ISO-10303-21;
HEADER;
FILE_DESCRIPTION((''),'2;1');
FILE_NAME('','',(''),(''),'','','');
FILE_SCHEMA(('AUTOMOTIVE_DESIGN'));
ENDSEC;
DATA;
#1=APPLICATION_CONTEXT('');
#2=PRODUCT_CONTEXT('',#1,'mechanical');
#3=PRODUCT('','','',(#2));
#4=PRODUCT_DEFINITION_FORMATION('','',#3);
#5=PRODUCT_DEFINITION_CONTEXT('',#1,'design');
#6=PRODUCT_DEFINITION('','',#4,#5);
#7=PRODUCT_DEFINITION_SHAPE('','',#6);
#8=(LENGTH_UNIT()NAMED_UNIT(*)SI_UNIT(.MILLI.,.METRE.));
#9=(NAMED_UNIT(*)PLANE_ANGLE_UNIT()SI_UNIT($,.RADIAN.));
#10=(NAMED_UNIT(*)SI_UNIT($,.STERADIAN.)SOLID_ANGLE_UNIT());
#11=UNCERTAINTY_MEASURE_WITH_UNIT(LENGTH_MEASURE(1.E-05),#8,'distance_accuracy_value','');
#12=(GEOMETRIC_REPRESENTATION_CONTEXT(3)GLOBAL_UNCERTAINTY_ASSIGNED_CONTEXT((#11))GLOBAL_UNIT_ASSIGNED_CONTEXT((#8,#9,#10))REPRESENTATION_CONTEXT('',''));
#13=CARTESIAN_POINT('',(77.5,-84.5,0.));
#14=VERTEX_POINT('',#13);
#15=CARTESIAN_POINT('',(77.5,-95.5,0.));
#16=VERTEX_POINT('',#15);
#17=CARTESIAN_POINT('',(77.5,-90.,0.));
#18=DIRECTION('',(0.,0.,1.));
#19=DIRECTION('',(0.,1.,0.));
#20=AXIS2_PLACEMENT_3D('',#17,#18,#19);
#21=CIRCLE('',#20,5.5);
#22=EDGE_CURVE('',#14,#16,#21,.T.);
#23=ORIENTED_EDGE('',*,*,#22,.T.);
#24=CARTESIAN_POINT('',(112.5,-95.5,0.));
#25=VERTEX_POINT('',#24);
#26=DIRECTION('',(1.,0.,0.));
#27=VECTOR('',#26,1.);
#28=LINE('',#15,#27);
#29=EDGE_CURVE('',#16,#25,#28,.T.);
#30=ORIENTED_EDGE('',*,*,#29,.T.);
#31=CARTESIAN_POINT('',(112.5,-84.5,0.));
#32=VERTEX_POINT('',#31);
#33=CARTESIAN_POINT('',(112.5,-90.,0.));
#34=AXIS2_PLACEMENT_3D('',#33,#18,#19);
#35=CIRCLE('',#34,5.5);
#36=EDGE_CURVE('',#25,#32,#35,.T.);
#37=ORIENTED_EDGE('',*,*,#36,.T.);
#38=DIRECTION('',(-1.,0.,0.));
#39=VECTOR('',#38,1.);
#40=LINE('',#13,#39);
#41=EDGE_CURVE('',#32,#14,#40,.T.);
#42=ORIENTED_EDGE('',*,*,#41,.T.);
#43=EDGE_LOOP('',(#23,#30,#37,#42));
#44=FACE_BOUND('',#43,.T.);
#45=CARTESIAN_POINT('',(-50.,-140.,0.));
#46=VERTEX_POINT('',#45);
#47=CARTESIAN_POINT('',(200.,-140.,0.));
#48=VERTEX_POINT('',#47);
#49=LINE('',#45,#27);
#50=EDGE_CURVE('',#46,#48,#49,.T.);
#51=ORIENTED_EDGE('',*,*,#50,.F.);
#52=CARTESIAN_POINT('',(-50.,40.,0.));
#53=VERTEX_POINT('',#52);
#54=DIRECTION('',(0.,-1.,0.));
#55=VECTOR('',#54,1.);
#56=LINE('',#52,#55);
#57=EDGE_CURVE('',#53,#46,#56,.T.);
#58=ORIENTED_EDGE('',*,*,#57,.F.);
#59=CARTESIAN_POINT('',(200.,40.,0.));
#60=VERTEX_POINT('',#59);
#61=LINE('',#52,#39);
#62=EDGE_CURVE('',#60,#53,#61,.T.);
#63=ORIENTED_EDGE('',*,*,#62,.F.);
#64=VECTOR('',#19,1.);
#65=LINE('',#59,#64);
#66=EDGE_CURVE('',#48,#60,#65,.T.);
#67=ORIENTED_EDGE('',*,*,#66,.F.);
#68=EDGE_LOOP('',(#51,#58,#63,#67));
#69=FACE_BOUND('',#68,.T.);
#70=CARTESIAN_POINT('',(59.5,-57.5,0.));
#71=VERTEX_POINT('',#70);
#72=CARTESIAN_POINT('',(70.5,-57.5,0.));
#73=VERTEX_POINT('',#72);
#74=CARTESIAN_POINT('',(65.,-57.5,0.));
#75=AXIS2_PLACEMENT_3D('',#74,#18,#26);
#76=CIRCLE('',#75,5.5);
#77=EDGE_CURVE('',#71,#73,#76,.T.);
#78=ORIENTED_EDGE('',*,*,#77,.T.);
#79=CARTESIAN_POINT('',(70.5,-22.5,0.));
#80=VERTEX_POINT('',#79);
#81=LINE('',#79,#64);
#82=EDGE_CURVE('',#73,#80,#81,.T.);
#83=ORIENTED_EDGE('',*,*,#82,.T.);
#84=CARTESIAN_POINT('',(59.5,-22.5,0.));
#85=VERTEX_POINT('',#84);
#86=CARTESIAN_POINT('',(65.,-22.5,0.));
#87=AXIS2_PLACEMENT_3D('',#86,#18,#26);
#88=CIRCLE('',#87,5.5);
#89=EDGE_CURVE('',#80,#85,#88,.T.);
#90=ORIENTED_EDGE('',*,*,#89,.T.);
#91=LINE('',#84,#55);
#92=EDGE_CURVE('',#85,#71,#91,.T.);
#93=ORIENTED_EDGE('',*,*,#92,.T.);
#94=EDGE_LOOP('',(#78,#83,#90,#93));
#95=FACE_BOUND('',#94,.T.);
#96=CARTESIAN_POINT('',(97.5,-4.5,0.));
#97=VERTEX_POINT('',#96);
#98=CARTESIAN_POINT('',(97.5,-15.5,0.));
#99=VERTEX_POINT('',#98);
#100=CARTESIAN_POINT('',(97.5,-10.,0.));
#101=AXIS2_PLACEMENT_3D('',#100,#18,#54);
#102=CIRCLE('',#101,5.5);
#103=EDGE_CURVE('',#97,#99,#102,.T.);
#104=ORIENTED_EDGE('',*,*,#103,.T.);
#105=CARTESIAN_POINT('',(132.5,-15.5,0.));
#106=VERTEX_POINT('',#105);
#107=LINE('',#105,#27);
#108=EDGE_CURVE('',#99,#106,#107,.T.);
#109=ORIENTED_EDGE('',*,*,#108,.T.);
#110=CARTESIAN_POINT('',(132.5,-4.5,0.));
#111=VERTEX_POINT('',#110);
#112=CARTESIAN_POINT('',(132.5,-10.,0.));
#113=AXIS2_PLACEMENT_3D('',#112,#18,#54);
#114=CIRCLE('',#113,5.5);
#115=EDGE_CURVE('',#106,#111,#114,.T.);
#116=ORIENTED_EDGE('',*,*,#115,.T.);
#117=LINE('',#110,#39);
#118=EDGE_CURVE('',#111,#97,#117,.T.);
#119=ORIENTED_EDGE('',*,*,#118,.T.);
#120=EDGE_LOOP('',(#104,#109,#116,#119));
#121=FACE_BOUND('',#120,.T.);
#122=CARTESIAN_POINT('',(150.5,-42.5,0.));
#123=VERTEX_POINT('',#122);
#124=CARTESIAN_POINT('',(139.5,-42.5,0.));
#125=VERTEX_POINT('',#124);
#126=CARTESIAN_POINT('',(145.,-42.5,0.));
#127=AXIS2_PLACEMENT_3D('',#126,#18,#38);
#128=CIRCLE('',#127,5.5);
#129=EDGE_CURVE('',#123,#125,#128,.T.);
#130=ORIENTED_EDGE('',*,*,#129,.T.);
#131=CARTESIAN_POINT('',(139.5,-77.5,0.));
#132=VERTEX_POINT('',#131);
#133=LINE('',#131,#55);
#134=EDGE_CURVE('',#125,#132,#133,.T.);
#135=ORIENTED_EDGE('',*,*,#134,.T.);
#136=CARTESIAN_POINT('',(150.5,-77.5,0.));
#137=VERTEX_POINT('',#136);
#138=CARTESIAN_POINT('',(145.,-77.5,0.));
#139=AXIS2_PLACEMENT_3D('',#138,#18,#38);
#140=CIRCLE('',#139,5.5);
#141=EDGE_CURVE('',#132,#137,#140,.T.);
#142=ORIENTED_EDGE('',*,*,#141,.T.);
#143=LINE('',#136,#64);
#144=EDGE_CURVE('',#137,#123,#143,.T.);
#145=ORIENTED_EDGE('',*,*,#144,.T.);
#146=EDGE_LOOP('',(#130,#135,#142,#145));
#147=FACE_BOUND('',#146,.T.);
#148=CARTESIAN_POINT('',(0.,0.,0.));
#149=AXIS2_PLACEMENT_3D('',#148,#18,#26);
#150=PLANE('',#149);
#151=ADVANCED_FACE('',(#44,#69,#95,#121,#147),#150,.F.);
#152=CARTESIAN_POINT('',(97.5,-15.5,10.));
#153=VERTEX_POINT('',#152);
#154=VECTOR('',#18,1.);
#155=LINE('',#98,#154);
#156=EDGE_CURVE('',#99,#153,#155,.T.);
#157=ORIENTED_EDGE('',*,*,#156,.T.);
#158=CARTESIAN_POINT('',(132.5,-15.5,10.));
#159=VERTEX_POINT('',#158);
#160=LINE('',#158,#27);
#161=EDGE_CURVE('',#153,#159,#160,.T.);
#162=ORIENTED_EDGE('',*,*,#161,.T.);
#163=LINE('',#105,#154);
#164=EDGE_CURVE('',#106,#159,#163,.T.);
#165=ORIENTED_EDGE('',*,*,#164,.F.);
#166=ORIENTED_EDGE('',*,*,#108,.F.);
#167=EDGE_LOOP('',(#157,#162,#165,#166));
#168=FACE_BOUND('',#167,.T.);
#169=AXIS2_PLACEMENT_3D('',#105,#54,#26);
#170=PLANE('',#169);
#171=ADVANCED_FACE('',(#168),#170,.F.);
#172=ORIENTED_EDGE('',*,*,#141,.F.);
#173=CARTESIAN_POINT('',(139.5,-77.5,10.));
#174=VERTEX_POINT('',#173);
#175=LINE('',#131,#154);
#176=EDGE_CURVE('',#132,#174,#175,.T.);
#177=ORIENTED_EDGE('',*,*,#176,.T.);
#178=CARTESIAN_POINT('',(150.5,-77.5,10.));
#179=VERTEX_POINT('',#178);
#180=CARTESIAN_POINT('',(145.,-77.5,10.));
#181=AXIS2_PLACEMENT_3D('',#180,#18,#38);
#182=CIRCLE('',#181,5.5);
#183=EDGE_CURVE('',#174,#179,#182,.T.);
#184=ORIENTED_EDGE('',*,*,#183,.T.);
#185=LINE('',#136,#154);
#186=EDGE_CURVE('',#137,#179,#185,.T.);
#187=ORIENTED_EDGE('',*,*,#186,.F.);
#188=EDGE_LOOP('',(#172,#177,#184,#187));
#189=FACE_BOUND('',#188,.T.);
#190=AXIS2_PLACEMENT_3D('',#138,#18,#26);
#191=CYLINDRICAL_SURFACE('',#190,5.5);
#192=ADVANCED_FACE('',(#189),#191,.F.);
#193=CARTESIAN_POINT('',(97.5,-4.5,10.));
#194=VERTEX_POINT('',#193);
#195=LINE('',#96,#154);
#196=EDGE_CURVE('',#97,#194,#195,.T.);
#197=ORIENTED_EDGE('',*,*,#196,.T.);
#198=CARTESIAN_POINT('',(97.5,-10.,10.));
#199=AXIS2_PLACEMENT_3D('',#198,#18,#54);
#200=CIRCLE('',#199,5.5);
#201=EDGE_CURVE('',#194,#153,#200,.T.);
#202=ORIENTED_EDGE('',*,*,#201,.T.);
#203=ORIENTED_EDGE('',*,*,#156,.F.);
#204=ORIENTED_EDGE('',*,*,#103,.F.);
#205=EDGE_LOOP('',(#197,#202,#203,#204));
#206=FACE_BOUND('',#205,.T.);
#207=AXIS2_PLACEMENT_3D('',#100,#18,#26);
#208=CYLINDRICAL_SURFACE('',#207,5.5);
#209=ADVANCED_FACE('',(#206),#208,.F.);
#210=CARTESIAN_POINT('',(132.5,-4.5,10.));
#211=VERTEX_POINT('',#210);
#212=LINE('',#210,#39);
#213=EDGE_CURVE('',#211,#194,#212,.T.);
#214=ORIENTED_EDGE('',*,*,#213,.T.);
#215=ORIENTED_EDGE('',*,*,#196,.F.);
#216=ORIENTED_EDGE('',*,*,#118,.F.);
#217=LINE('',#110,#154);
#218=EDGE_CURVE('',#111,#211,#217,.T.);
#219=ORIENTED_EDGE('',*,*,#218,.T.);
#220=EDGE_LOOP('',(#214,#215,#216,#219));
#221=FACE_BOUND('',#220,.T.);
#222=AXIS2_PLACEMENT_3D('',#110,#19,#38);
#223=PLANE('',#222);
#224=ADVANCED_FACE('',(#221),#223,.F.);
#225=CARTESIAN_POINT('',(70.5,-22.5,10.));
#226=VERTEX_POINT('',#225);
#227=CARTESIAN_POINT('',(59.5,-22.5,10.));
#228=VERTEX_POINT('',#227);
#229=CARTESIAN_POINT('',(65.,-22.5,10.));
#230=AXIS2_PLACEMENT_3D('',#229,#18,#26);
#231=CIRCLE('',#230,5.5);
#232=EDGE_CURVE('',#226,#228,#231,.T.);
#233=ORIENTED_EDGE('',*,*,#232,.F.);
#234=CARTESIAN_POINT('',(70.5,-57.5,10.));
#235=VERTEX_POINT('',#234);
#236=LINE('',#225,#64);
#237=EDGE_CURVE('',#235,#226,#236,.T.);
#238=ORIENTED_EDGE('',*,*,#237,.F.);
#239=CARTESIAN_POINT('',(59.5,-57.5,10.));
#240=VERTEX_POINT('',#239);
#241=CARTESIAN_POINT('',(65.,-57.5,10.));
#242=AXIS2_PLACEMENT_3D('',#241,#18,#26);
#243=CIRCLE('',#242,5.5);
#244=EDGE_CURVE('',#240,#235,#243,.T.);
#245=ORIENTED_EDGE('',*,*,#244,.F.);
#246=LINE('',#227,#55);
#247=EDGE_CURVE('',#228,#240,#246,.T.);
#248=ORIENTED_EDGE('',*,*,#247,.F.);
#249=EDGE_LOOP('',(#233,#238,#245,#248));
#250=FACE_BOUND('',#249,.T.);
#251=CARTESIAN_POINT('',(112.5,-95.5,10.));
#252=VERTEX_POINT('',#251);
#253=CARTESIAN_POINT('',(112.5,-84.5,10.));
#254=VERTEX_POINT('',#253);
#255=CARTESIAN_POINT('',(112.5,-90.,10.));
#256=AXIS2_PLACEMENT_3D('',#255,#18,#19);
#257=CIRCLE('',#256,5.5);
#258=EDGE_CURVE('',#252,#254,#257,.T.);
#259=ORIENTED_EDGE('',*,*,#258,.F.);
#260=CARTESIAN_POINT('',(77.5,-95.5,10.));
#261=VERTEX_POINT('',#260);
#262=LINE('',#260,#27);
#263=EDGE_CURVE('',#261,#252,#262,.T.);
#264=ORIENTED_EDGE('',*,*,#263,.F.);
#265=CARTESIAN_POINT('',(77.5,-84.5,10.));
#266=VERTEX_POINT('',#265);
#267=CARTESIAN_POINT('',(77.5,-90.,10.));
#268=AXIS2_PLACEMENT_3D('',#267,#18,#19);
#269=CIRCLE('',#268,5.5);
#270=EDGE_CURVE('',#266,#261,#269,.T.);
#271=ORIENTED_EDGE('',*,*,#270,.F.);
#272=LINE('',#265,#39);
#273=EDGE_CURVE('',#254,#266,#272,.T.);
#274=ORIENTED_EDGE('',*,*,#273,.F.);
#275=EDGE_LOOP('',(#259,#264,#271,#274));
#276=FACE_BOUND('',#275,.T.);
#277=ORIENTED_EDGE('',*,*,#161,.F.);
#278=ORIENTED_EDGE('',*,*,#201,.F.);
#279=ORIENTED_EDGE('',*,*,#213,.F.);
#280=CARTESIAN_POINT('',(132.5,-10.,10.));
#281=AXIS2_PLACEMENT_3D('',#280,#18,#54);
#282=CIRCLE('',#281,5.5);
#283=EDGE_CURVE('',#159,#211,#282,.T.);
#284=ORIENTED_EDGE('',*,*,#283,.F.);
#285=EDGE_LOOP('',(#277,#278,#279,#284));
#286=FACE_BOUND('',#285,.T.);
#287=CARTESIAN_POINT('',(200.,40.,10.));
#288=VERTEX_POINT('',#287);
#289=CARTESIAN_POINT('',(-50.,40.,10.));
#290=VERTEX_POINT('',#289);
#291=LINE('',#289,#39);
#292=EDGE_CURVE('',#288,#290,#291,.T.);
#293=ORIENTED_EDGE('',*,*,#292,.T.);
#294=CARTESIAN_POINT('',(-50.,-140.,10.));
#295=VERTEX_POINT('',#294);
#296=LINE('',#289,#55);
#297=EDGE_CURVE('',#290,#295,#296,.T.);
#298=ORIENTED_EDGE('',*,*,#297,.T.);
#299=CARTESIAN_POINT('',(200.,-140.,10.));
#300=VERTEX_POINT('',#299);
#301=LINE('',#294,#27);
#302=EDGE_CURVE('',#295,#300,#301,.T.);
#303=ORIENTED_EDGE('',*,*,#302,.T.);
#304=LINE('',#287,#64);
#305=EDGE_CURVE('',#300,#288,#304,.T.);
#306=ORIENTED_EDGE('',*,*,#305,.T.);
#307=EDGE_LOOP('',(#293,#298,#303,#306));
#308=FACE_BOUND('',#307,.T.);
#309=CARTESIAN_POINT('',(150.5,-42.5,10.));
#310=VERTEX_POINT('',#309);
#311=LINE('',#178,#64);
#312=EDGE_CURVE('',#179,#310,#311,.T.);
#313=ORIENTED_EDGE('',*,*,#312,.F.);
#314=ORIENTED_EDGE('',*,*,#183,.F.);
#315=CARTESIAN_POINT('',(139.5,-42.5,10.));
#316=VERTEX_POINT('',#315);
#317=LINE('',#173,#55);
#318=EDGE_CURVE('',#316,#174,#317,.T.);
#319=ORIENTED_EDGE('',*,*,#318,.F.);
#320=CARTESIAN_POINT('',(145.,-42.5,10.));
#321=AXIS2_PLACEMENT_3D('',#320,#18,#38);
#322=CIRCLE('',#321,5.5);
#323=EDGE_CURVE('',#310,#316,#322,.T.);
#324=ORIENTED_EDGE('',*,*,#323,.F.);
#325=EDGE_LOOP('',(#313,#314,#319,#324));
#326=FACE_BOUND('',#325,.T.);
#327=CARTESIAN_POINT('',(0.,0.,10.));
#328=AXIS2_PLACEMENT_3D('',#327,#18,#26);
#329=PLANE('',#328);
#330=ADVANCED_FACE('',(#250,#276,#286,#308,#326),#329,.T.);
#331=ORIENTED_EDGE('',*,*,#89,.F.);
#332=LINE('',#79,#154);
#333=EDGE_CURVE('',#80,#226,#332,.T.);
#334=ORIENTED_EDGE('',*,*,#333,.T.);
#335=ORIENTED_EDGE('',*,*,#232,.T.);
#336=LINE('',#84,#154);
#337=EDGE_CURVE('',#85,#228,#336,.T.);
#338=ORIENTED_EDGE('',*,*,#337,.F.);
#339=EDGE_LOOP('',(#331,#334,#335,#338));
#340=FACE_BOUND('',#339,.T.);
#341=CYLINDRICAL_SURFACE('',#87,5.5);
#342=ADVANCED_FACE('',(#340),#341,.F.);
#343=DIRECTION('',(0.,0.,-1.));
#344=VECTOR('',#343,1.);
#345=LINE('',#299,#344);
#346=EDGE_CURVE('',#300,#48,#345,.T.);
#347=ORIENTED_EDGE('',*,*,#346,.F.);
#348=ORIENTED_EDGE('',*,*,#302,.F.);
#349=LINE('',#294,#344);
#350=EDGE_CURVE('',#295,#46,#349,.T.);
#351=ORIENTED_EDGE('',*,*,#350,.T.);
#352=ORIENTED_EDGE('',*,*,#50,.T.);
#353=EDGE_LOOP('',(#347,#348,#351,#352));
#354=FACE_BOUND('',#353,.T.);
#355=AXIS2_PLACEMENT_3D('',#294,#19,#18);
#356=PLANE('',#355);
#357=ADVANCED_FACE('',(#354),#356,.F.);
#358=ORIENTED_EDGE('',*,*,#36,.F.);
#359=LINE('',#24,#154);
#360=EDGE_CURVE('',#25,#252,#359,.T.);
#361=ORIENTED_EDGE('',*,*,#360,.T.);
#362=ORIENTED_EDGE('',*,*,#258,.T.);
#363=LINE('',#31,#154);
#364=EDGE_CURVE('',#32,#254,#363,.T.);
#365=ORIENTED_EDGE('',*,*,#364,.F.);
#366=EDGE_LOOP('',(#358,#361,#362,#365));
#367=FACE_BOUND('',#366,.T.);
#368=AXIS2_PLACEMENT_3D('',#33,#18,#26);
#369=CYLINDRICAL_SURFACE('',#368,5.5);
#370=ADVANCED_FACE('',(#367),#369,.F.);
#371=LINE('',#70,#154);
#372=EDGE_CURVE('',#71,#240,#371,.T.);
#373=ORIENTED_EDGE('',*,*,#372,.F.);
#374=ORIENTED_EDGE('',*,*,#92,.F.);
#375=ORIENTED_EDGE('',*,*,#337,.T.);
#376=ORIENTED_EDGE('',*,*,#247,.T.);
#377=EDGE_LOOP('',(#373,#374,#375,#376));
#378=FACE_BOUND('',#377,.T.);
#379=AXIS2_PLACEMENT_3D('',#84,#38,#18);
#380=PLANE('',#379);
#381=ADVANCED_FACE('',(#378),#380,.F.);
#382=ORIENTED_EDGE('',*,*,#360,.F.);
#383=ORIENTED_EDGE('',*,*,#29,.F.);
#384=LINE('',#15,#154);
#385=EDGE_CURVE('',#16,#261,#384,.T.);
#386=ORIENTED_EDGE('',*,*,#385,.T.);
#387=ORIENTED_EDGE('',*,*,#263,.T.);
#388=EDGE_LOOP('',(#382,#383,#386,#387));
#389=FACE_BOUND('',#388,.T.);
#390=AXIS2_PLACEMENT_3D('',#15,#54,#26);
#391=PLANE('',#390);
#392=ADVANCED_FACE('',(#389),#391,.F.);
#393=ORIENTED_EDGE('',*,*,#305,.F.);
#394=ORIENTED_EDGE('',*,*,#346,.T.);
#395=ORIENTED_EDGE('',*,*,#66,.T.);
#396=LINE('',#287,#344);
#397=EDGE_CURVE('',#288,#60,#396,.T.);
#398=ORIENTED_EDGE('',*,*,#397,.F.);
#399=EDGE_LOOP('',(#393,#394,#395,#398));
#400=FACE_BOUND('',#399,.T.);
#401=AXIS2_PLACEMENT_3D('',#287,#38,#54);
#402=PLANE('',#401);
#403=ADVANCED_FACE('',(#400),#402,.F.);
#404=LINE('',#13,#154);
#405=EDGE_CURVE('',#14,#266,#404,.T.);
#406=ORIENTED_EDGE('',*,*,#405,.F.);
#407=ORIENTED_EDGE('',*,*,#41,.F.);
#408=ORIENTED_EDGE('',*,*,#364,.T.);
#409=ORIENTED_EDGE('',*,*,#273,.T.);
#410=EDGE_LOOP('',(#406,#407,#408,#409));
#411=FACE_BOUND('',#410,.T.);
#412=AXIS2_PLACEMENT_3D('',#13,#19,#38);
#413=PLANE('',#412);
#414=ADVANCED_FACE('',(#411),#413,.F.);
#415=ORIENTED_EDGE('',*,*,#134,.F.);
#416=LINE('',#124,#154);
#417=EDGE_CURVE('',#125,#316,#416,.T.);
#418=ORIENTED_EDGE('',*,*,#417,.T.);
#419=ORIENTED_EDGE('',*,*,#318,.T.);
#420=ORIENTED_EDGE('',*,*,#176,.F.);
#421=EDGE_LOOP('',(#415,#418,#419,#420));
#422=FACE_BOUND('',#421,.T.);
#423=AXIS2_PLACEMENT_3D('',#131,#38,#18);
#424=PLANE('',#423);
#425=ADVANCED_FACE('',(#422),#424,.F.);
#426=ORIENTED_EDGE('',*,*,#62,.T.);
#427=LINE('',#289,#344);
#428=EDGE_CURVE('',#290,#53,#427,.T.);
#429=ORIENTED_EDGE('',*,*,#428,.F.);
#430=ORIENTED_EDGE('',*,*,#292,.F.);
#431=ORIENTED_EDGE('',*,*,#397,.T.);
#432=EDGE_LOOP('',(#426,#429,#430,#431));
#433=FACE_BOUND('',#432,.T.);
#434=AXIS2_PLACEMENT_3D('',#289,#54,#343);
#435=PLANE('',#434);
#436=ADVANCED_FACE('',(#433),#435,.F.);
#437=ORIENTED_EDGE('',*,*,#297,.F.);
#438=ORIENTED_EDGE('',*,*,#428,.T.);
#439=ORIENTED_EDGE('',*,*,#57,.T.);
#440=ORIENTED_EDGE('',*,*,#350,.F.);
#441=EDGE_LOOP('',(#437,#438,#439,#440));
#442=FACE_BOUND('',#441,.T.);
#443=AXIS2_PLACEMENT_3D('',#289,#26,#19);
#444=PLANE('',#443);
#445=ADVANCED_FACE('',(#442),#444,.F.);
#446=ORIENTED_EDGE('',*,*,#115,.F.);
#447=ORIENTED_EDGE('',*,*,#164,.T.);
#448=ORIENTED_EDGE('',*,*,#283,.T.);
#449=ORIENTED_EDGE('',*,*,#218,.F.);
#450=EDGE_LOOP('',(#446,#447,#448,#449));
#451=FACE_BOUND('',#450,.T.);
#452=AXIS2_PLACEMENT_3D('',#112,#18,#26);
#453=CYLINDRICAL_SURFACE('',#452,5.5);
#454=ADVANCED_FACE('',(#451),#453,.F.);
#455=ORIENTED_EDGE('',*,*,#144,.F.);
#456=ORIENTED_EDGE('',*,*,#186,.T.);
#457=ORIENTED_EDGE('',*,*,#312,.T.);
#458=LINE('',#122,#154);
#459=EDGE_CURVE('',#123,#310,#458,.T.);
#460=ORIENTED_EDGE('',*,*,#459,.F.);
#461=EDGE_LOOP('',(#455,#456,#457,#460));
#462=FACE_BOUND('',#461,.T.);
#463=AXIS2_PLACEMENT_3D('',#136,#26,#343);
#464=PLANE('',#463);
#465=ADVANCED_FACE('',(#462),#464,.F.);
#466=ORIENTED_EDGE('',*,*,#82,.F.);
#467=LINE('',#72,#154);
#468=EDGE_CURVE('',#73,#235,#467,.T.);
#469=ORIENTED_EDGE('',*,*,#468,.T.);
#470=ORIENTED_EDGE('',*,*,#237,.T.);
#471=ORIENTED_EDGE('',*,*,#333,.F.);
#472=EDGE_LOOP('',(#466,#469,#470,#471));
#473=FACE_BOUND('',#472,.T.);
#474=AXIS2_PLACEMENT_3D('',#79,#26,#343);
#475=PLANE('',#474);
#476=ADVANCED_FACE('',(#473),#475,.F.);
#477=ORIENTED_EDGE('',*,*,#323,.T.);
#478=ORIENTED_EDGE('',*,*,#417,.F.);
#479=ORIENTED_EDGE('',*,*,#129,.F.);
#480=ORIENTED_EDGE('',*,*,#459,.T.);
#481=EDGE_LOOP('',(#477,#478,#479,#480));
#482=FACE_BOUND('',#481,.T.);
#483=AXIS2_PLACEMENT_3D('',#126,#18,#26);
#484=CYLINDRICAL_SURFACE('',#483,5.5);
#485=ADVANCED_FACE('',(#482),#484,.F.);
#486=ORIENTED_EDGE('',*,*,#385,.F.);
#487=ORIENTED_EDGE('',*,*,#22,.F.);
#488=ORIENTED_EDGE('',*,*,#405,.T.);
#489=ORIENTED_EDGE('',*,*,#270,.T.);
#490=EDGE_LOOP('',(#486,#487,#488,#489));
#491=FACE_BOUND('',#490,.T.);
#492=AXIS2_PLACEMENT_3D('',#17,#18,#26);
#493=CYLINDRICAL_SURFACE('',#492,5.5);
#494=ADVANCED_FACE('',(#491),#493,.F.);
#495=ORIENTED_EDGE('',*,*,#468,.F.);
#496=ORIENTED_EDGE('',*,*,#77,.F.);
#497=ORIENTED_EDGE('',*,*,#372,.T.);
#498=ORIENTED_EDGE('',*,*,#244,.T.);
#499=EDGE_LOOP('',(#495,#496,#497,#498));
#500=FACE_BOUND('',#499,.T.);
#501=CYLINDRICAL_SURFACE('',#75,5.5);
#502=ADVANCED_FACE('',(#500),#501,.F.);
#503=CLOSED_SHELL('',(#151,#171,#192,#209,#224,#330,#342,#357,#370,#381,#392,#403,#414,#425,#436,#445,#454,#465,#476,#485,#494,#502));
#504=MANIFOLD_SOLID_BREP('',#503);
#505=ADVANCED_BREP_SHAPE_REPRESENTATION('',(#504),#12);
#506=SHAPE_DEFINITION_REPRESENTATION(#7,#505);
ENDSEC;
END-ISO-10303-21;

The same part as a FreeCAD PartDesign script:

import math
import FreeCAD as App
import Part
import Sketcher

V = App.Vector

doc = App.newDocument("Part")
body = doc.addObject("PartDesign::Body", "Body")

sketch1 = body.newObject("Sketcher::SketchObject", "Sketch")
sketch1.AttachmentSupport = (doc.getObject("XY_Plane"), [""])
sketch1.MapMode = "FlatFace"
sketch1.addGeometry([
    Part.LineSegment(V(-50, 40, 0), V(-50, -140, 0)),
    Part.LineSegment(V(-50, -140, 0), V(200, -140, 0)),
    Part.LineSegment(V(200, -140, 0), V(200, 40, 0)),
    Part.LineSegment(V(200, 40, 0), V(-50, 40, 0)),
], False)
sketch1.addConstraint([
    Sketcher.Constraint("Coincident", 0, 2, 1, 1),
    Sketcher.Constraint("Coincident", 1, 2, 2, 1),
    Sketcher.Constraint("Coincident", 2, 2, 3, 1),
    Sketcher.Constraint("Coincident", 3, 2, 0, 1),
    Sketcher.Constraint("Vertical", 0),
    Sketcher.Constraint("Horizontal", 1),
    Sketcher.Constraint("Vertical", 2),
    Sketcher.Constraint("Horizontal", 3),
    Sketcher.Constraint("DistanceX", 1, 1, 1, 2, 250.0),
    Sketcher.Constraint("DistanceY", 0, 2, 0, 1, 180.0),
    Sketcher.Constraint("DistanceX", 0, 2, -1, 1, 50.0),
    Sketcher.Constraint("DistanceY", 0, 2, -1, 1, 140.0),
])
pad1 = body.newObject("PartDesign::Pad", "Pad")
pad1.Profile = sketch1
pad1.Length = 10

sketch2 = body.newObject("Sketcher::SketchObject", "Sketch001")
sketch2.AttachmentSupport = (doc.getObject("XY_Plane"), [""])
sketch2.MapMode = "FlatFace"
sketch2.AttachmentOffset = App.Placement(V(0, 0, 10), App.Rotation())
sketch2.addGeometry([
    Part.LineSegment(V(70, -58, 0), V(70, -22, 0)),
    Part.ArcOfCircle(Part.Circle(V(65, -22, 0), V(0, 0, 1), 6), math.radians(0), math.radians(180)),
    Part.LineSegment(V(60, -22, 0), V(60, -58, 0)),
    Part.ArcOfCircle(Part.Circle(V(65, -58, 0), V(0, 0, 1), 6), math.radians(180), math.radians(360)),
], False)
sketch2.addConstraint([
    Sketcher.Constraint("Tangent", 0, 2, 1, 1),
    Sketcher.Constraint("Tangent", 1, 2, 2, 1),
    Sketcher.Constraint("Tangent", 2, 2, 3, 1),
    Sketcher.Constraint("Tangent", 3, 2, 0, 1),
    Sketcher.Constraint("Vertical", 0),
    Sketcher.Constraint("Vertical", 2),
    Sketcher.Constraint("Radius", 1, 5.5),
    Sketcher.Constraint("DistanceY", 0, 1, 0, 2, 35.0),
    Sketcher.Constraint("DistanceX", -1, 1, 1, 3, 65.0),
    Sketcher.Constraint("DistanceY", 1, 3, -1, 1, 22.5),
])
pocket1 = body.newObject("PartDesign::Pocket", "Pocket")
pocket1.Profile = sketch2
pocket1.Length = 10
doc.recompute()

datumline = body.newObject("PartDesign::Line", "DatumLine")
datumline.Placement = App.Placement(V(105, -50, 0), App.Rotation(V(0, 0, 1), V(0, 0, 1)))
polarpattern = body.newObject("PartDesign::PolarPattern", "PolarPattern")
polarpattern.Originals = [pocket1]
polarpattern.Axis = (datumline, [""])
polarpattern.Angle = 360
polarpattern.Occurrences = 4
body.Tip = polarpattern

doc.recompute()
